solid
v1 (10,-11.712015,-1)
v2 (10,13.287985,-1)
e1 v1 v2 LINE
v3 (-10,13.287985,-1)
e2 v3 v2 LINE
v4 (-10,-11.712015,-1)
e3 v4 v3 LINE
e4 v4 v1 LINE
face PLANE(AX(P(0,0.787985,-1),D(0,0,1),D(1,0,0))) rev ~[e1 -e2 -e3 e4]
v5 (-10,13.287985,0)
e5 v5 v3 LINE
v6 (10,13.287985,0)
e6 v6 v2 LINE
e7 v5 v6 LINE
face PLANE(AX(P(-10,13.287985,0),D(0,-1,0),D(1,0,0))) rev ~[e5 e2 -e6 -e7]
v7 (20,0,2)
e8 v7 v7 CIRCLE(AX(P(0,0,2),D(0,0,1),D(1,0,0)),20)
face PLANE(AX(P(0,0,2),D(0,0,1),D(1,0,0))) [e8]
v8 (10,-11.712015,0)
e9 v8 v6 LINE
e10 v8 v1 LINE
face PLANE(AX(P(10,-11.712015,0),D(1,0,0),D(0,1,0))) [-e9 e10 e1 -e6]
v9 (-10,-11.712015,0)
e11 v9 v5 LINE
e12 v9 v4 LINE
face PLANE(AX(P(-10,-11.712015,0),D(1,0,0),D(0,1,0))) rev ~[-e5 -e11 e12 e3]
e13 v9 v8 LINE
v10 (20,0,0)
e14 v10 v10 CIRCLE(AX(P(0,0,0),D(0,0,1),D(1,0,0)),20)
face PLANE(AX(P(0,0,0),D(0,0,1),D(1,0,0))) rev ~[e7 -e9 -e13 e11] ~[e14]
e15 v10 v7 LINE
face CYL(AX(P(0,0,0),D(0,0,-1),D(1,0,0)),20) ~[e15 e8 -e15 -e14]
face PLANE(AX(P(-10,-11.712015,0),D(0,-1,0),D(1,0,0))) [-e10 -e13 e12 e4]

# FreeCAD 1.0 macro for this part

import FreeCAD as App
import Part
import Sketcher

V = App.Vector

doc = App.newDocument("Part")
body = doc.addObject("PartDesign::Body", "Body")

# Sketch on XY plane
sketch1 = body.newObject("Sketcher::SketchObject", "Sketch")
sketch1.AttachmentSupport = (doc.getObject("XY_Plane"), [""])
sketch1.MapMode = "FlatFace"
sketch1.addGeometry(Part.Circle(V(0, 0, 0), V(0, 0, 1), 20), False)
sketch1.addConstraint(Sketcher.Constraint("Coincident", 0, 3, -1, 1))
sketch1.addConstraint(Sketcher.Constraint("Diameter", 0, 40.0))
pad1 = body.newObject("PartDesign::Pad", "Pad")
pad1.Profile = sketch1
pad1.Length = 2

# Sketch on XY plane
sketch2 = body.newObject("Sketcher::SketchObject", "Sketch001")
sketch2.AttachmentSupport = (doc.getObject("XY_Plane"), [""])
sketch2.MapMode = "FlatFace"
sketch2.addGeometry(Part.LineSegment(V(-10, 13.287985, 0), V(-10, -11.712015, 0)), False)
sketch2.addGeometry(Part.LineSegment(V(-10, -11.712015, 0), V(10, -11.712015, 0)), False)
sketch2.addGeometry(Part.LineSegment(V(10, -11.712015, 0), V(10, 13.287985, 0)), False)
sketch2.addGeometry(Part.LineSegment(V(10, 13.287985, 0), V(-10, 13.287985, 0)), False)
sketch2.addConstraint(Sketcher.Constraint("Coincident", 0, 2, 1, 1))
sketch2.addConstraint(Sketcher.Constraint("Coincident", 1, 2, 2, 1))
sketch2.addConstraint(Sketcher.Constraint("Coincident", 2, 2, 3, 1))
sketch2.addConstraint(Sketcher.Constraint("Coincident", 3, 2, 0, 1))
sketch2.addConstraint(Sketcher.Constraint("Vertical", 0))
sketch2.addConstraint(Sketcher.Constraint("Horizontal", 1))
sketch2.addConstraint(Sketcher.Constraint("Vertical", 2))
sketch2.addConstraint(Sketcher.Constraint("Horizontal", 3))
sketch2.addConstraint(Sketcher.Constraint("DistanceX", 1, 1, 1, 2, 20.0))
sketch2.addConstraint(Sketcher.Constraint("DistanceY", 0, 2, 0, 1, 25.0))
sketch2.addConstraint(Sketcher.Constraint("DistanceX", 0, 2, -1, 1, 10.0))
sketch2.addConstraint(Sketcher.Constraint("DistanceY", 0, 2, -1, 1, 11.712015))
pad2 = body.newObject("PartDesign::Pad", "Pad001")
pad2.Profile = sketch2
pad2.Length = 1
pad2.Reversed = True

doc.recompute()
